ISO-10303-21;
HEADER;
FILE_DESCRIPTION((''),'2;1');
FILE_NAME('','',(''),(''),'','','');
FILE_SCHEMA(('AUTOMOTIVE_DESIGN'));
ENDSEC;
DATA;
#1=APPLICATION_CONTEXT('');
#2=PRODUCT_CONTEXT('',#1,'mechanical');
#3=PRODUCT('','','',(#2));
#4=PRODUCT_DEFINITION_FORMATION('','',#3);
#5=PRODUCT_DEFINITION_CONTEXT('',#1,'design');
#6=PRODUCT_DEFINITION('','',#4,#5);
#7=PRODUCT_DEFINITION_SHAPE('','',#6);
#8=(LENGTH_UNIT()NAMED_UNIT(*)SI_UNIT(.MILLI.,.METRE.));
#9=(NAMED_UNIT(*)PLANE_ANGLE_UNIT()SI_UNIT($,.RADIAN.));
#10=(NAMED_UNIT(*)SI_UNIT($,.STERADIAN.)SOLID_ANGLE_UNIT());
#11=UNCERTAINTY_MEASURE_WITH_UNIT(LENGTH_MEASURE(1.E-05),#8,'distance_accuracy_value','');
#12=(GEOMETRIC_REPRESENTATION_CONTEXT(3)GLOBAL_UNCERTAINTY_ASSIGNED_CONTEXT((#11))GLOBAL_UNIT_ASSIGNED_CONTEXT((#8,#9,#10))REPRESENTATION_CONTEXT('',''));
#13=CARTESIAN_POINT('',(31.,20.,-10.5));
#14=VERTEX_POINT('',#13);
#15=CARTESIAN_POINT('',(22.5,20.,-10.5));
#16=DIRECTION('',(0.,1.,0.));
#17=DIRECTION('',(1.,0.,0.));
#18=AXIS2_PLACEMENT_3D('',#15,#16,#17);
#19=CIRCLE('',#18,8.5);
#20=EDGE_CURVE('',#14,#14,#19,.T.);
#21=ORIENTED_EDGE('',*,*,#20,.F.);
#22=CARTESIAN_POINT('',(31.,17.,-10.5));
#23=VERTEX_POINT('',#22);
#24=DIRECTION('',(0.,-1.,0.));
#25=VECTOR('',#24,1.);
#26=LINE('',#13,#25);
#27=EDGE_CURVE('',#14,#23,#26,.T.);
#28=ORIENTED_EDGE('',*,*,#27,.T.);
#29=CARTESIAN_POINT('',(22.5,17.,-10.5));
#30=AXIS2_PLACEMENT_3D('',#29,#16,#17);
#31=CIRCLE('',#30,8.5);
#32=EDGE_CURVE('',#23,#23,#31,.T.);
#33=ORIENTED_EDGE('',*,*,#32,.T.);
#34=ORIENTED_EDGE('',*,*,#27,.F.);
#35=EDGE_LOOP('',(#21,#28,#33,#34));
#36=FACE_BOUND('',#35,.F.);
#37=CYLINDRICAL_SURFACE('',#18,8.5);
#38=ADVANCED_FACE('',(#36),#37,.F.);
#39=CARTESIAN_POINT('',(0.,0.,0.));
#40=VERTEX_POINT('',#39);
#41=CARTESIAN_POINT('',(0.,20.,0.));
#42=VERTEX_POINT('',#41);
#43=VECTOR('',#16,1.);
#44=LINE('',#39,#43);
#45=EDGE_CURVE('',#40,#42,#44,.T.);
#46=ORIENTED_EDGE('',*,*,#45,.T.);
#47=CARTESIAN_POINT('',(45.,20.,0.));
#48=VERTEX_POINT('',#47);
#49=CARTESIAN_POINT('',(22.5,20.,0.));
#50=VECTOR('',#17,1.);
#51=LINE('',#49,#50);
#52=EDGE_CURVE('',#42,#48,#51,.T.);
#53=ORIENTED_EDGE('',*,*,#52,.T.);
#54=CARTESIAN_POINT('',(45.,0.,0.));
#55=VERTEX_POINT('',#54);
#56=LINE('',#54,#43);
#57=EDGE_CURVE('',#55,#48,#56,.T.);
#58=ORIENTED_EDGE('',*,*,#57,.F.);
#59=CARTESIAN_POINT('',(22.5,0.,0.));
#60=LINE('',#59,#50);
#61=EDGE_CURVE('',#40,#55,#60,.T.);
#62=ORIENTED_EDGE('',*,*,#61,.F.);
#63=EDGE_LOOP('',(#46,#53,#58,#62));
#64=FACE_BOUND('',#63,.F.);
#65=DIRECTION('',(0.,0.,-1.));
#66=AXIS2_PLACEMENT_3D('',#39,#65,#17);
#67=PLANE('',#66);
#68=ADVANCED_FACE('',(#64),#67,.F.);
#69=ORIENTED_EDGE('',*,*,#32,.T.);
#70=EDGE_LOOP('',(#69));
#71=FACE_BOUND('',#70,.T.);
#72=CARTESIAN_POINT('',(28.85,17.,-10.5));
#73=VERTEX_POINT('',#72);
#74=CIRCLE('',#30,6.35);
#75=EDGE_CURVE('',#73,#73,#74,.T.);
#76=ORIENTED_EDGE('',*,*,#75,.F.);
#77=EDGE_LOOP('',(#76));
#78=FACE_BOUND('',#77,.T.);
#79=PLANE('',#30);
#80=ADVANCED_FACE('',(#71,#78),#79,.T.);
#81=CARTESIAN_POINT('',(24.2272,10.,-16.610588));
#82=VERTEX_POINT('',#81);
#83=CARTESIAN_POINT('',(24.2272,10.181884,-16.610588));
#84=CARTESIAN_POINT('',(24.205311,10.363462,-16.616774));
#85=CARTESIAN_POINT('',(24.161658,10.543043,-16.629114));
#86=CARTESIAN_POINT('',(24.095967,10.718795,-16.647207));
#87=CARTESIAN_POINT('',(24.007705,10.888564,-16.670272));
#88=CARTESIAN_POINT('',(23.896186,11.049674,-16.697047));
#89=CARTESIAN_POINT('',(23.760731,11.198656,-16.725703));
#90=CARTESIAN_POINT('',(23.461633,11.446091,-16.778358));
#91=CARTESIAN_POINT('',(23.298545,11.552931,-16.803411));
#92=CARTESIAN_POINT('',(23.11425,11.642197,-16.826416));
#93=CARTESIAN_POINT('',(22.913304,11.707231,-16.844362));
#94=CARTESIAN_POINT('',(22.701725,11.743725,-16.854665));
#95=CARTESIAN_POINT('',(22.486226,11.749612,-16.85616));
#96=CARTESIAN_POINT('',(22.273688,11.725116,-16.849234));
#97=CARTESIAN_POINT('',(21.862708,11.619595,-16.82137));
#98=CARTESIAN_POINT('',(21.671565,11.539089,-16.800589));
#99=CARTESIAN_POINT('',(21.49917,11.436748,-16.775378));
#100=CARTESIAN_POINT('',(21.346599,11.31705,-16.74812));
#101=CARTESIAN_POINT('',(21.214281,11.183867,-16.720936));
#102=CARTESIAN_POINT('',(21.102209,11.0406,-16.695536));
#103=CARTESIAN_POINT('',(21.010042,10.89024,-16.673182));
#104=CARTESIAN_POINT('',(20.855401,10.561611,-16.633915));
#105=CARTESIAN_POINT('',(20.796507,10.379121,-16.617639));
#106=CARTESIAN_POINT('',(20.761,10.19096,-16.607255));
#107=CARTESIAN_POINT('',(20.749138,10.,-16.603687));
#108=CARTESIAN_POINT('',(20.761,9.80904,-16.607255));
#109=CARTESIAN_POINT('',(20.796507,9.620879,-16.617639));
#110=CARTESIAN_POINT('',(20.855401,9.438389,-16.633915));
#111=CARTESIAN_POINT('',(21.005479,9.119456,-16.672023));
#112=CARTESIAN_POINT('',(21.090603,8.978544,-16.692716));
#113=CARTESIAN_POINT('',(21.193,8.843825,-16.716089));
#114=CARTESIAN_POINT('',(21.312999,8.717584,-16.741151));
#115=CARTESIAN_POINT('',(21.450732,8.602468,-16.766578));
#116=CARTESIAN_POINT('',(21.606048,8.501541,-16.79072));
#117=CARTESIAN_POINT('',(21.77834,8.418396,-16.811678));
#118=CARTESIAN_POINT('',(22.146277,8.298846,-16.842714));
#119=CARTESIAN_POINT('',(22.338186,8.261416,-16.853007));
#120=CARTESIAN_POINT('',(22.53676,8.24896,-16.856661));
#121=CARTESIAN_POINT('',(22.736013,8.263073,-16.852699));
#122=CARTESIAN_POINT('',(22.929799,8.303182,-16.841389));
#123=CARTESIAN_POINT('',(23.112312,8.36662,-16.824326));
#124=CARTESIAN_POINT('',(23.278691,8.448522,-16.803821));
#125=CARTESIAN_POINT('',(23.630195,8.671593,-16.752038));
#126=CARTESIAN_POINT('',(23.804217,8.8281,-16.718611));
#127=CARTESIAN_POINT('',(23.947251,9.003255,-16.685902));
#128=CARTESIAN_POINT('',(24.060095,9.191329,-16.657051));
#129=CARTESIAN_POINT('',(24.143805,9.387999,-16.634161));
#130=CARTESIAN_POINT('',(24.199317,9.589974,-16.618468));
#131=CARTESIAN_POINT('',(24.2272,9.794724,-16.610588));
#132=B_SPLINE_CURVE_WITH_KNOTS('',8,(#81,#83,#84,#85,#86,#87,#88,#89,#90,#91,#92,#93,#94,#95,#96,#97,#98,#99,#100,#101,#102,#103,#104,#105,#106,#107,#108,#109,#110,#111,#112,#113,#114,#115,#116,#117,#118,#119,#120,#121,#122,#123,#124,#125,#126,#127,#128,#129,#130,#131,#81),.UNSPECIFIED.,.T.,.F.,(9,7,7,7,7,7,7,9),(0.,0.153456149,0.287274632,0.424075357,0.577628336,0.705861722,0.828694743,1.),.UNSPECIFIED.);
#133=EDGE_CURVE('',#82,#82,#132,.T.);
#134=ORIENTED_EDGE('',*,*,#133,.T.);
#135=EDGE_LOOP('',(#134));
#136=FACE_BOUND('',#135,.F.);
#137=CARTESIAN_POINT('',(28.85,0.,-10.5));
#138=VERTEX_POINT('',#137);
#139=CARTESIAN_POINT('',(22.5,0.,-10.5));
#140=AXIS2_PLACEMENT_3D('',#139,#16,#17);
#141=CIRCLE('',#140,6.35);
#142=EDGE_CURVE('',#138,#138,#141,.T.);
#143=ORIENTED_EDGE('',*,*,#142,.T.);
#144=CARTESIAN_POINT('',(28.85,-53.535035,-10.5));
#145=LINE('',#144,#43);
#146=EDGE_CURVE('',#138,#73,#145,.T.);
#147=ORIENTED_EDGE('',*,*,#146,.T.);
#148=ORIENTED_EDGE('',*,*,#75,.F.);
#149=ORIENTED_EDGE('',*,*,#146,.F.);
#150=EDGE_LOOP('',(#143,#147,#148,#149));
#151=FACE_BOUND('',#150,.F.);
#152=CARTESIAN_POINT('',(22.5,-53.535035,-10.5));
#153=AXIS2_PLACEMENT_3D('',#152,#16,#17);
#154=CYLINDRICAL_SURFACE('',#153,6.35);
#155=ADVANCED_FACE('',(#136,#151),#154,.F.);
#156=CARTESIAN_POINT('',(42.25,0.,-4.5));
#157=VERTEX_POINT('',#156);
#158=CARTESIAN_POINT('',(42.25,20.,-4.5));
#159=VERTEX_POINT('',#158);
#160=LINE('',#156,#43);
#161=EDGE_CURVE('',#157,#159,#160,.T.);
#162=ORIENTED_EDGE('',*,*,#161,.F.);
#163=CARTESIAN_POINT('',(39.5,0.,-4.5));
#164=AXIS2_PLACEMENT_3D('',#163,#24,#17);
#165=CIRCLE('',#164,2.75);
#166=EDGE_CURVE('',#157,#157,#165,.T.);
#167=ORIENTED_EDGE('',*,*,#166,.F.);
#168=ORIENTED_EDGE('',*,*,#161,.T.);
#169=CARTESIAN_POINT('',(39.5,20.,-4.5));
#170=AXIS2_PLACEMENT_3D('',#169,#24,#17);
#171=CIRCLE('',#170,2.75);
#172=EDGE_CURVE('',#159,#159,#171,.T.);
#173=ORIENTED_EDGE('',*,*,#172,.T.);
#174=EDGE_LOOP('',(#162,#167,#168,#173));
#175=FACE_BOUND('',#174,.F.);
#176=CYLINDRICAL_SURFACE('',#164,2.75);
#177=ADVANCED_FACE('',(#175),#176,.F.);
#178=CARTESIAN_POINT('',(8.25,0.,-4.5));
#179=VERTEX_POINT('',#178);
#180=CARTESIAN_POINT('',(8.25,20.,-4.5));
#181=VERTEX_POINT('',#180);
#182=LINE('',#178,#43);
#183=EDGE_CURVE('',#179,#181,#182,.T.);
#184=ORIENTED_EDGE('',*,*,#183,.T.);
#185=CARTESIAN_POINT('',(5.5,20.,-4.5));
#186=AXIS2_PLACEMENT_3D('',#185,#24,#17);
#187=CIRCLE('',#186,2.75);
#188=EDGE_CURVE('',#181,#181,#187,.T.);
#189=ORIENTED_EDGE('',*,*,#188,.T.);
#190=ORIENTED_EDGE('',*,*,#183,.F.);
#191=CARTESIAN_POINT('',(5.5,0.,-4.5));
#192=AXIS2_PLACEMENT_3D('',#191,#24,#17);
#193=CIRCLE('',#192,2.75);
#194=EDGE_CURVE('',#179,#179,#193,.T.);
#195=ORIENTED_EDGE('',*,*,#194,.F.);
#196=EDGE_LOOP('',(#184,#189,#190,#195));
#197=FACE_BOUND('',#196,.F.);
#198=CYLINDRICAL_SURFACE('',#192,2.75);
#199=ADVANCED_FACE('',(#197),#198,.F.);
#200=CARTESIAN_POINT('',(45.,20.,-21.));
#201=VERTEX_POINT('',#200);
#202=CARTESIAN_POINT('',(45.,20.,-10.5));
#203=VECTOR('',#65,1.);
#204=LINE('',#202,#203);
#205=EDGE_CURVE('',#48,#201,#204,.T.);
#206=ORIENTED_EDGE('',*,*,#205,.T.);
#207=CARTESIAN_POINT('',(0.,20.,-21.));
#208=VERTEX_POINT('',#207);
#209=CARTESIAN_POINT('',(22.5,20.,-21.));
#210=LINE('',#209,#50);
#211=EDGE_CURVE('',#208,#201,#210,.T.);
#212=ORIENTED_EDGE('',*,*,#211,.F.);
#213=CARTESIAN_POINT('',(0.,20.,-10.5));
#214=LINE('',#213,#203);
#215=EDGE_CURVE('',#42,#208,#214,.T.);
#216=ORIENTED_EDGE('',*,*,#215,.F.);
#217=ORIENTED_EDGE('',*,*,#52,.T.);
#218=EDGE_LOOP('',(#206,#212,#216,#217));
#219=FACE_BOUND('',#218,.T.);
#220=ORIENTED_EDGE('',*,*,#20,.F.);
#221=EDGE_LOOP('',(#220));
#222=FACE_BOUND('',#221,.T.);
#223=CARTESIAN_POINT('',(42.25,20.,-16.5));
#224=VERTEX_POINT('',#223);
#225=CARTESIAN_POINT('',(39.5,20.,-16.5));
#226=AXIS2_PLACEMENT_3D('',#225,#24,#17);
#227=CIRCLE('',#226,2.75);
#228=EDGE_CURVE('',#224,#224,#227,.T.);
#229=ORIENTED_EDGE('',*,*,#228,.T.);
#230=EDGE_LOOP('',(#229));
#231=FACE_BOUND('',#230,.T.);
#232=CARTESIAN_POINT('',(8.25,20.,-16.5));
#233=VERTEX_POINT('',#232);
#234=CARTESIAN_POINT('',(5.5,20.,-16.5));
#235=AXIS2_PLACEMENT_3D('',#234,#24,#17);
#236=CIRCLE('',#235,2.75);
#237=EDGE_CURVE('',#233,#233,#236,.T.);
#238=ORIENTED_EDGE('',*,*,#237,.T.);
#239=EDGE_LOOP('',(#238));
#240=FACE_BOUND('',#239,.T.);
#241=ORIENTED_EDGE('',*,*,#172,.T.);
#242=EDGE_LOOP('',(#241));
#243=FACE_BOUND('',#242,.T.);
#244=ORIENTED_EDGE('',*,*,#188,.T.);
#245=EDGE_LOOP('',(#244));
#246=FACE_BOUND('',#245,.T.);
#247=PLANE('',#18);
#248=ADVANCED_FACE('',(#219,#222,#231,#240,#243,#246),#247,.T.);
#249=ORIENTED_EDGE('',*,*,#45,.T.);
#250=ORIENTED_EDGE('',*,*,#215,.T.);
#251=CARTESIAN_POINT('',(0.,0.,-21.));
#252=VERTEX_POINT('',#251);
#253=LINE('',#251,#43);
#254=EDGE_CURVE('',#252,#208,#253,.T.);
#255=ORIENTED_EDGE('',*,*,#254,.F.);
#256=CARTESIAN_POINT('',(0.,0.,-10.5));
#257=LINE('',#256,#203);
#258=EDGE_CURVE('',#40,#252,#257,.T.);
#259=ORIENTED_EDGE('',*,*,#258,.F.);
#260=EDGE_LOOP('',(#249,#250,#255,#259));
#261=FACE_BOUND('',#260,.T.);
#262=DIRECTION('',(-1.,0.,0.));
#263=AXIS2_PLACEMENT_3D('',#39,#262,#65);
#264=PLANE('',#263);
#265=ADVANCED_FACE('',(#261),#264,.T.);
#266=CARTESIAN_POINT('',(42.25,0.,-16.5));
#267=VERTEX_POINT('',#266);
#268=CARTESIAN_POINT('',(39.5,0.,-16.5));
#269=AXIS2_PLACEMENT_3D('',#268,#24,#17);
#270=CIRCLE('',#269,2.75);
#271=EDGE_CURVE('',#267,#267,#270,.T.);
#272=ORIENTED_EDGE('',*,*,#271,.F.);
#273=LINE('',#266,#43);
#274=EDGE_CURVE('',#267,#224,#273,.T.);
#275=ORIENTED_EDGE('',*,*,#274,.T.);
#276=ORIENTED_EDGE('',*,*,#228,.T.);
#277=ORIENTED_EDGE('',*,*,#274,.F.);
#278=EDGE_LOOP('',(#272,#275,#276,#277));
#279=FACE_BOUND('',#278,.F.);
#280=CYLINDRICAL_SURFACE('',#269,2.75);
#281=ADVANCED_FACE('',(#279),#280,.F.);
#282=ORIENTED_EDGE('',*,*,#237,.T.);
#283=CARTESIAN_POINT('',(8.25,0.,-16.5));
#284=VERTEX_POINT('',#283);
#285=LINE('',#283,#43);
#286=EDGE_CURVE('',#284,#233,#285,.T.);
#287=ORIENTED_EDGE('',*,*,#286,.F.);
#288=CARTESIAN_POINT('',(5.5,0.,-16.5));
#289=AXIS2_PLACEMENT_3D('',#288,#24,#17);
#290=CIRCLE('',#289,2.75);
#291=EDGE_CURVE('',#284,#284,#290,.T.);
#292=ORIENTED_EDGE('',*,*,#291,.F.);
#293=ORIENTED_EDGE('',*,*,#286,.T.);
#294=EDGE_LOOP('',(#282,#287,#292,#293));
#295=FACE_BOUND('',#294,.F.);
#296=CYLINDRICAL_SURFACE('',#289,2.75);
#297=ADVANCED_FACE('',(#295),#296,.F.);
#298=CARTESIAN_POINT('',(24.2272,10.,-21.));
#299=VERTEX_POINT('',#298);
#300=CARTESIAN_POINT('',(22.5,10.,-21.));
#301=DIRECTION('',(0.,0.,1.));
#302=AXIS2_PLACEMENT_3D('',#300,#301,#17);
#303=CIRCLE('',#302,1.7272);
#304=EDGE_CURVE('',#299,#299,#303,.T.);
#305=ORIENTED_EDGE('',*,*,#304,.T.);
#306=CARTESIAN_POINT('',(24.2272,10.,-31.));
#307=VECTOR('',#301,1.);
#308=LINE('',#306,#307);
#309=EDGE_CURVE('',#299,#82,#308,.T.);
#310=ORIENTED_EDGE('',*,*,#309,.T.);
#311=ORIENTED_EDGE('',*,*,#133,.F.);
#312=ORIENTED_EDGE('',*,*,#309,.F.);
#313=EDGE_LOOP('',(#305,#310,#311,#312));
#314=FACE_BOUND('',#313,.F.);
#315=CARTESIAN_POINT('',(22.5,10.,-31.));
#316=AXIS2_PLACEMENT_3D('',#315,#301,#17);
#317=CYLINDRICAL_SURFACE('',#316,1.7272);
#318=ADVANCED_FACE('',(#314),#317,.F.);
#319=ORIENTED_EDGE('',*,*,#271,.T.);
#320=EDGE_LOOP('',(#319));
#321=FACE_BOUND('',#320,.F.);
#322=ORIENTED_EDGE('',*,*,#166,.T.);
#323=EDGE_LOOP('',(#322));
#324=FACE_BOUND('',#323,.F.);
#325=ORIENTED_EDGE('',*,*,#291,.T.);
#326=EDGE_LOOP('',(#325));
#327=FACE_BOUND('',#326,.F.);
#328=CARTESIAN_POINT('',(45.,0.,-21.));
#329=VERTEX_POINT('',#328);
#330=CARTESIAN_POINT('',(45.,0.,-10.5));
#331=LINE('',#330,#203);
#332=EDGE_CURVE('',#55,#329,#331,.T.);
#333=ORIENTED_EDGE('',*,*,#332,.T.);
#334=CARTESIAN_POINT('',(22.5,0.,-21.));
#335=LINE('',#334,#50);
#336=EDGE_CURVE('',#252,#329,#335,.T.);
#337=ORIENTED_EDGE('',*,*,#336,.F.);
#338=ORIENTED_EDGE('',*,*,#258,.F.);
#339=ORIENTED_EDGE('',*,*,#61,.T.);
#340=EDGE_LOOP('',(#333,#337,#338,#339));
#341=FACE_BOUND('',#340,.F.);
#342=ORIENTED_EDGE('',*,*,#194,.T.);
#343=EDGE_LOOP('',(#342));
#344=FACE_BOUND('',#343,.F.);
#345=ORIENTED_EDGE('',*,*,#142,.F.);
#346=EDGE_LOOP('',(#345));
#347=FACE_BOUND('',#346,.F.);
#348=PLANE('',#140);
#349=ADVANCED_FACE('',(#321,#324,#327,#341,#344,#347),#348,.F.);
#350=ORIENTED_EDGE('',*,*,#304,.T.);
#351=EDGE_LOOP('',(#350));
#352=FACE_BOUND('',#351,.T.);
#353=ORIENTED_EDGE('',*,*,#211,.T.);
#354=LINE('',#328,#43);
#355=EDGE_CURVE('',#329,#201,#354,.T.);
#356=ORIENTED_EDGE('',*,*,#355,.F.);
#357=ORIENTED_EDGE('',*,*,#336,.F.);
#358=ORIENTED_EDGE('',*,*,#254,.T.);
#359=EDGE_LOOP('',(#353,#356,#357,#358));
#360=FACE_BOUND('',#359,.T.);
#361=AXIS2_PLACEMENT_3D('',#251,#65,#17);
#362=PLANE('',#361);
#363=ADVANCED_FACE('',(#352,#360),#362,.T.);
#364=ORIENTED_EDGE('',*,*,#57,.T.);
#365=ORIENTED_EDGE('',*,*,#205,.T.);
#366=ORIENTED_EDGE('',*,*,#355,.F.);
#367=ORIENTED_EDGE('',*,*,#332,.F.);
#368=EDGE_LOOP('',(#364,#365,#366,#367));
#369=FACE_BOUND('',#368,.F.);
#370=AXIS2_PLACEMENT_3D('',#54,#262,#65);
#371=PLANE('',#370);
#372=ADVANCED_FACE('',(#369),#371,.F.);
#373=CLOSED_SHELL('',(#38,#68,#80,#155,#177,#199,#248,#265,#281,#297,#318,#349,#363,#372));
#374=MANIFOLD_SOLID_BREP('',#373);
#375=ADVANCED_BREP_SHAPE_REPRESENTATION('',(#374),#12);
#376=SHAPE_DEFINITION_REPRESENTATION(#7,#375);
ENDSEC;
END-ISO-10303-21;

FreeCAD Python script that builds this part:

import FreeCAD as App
import Part
import Sketcher

V = App.Vector


def add_polygon(sketch, points):
    """Adds a closed chain of lines whose ends are joined by coincident constraints."""
    first, n = sketch.GeometryCount, len(points)
    for a, b in zip(points, points[1:] + points[:1]):
        sketch.addGeometry(Part.LineSegment(App.Vector(*a, 0), App.Vector(*b, 0)), False)
    for i in range(n):
        sketch.addConstraint(Sketcher.Constraint("Coincident", first + i, 2, first + (i + 1) % n, 1))

doc = App.newDocument("Part")
body = doc.addObject("PartDesign::Body", "Body")

sketch1 = doc.addObject("Sketcher::SketchObject", "Sketch")
body.addObject(sketch1)
sketch1.AttachmentSupport = (doc.XZ_Plane, [""])
sketch1.MapMode = "FlatFace"
add_polygon(sketch1, [(0, -21), (0, 0), (45, 0), (45, -21)])
sketch1.addConstraint([
    Sketcher.Constraint("Vertical", 0),
    Sketcher.Constraint("Horizontal", 1),
    Sketcher.Constraint("Vertical", 2),
    Sketcher.Constraint("Horizontal", 3),
    Sketcher.Constraint("Coincident", 0, 2, -1, 1),
    Sketcher.Constraint("DistanceX", 1, 1, 1, 2, 45.0),
    Sketcher.Constraint("DistanceY", 0, 1, 0, 2, 21.0),
])
pad1 = doc.addObject("PartDesign::Pad", "Pad")
body.addObject(pad1)
pad1.Profile = sketch1
pad1.Length = 20
pad1.Reversed = True

sketch2 = doc.addObject("Sketcher::SketchObject", "Sketch001")
body.addObject(sketch2)
sketch2.AttachmentSupport = (doc.XZ_Plane, [""])
sketch2.MapMode = "FlatFace"
sketch2.addGeometry([
    Part.Circle(V(39.5, -16.5, 0), V(0, 0, 1), 2.8),
    Part.Circle(V(39.5, -4.5, 0), V(0, 0, 1), 2.8),
    Part.Circle(V(5.5, -16.5, 0), V(0, 0, 1), 2.8),
    Part.Circle(V(5.5, -4.5, 0), V(0, 0, 1), 2.8),
], False)
sketch2.addConstraint([
    Sketcher.Constraint("Equal", 0, 1),
    Sketcher.Constraint("Equal", 1, 2),
    Sketcher.Constraint("Equal", 2, 3),
    Sketcher.Constraint("Horizontal", 0, 3, 2, 3),
    Sketcher.Constraint("Horizontal", 1, 3, 3, 3),
    Sketcher.Constraint("Vertical", 0, 3, 1, 3),
    Sketcher.Constraint("Vertical", 2, 3, 3, 3),
    Sketcher.Constraint("Diameter", 0, 5.5),
    Sketcher.Constraint("DistanceY", 0, 3, 1, 3, 12.0),
    Sketcher.Constraint("DistanceX", 2, 3, 0, 3, 34.0),
    Sketcher.Constraint("DistanceX", -1, 1, 0, 3, 39.5),
    Sketcher.Constraint("DistanceY", 0, 3, -1, 1, 16.5),
])
pocket1 = doc.addObject("PartDesign::Pocket", "Pocket")
body.addObject(pocket1)
pocket1.Profile = sketch2
pocket1.Type = "ThroughAll"

sketch3 = doc.addObject("Sketcher::SketchObject", "Sketch002")
body.addObject(sketch3)
sketch3.AttachmentSupport = (doc.XZ_Plane, [""])
sketch3.MapMode = "FlatFace"
sketch3.AttachmentOffset = App.Placement(V(0, 0, -20), App.Rotation())
sketch3.addGeometry(Part.Circle(V(22, -10, 0), V(0, 0, 1), 8), False)
sketch3.addConstraint([
    Sketcher.Constraint("Diameter", 0, 17.0),
    Sketcher.Constraint("DistanceX", -1, 1, 0, 3, 22.5),
    Sketcher.Constraint("DistanceY", 0, 3, -1, 1, 10.5),
])
pocket2 = doc.addObject("PartDesign::Pocket", "Pocket001")
body.addObject(pocket2)
pocket2.Profile = sketch3
pocket2.Length = 3
pocket2.Reversed = True

sketch4 = doc.addObject("Sketcher::SketchObject", "Sketch003")
body.addObject(sketch4)
sketch4.AttachmentSupport = (doc.XZ_Plane, [""])
sketch4.MapMode = "FlatFace"
sketch4.addGeometry(Part.Circle(V(22, -10, 0), V(0, 0, 1), 6), False)
sketch4.addConstraint([
    Sketcher.Constraint("Diameter", 0, 12.7),
    Sketcher.Constraint("DistanceX", -1, 1, 0, 3, 22.5),
    Sketcher.Constraint("DistanceY", 0, 3, -1, 1, 10.5),
])
doc.recompute()
hole = doc.addObject("PartDesign::Hole", "Hole")
body.addObject(hole)
hole.Profile = sketch4
hole.ThreadType = "None"
hole.Diameter = 12.7
hole.DepthType = "ThroughAll"

sketch5 = doc.addObject("Sketcher::SketchObject", "Sketch004")
body.addObject(sketch5)
sketch5.AttachmentSupport = (doc.XY_Plane, [""])
sketch5.MapMode = "FlatFace"
sketch5.AttachmentOffset = App.Placement(V(0, 0, -21), App.Rotation())
sketch5.addGeometry(Part.Circle(V(22.5, 10, 0), V(0, 0, 1), 1.7), False)
sketch5.addConstraint([
    Sketcher.Constraint("DistanceY", -1, 1, 0, 3, 10.0),
    Sketcher.Constraint("Diameter", 0, 3.4544),
    Sketcher.Constraint("DistanceX", -1, 1, 0, 3, 22.5),
])
doc.recompute()
hole2 = doc.addObject("PartDesign::Hole", "Hole001")
body.addObject(hole2)
hole2.Profile = sketch5
hole2.ThreadType = "None"
hole2.Diameter = 3.4544
hole2.DepthType = "Dimension"
hole2.Depth = 10
hole2.DrillPoint = "Angled"
hole2.DrillPointAngle = 118
hole2.Reversed = True

doc.recompute()
